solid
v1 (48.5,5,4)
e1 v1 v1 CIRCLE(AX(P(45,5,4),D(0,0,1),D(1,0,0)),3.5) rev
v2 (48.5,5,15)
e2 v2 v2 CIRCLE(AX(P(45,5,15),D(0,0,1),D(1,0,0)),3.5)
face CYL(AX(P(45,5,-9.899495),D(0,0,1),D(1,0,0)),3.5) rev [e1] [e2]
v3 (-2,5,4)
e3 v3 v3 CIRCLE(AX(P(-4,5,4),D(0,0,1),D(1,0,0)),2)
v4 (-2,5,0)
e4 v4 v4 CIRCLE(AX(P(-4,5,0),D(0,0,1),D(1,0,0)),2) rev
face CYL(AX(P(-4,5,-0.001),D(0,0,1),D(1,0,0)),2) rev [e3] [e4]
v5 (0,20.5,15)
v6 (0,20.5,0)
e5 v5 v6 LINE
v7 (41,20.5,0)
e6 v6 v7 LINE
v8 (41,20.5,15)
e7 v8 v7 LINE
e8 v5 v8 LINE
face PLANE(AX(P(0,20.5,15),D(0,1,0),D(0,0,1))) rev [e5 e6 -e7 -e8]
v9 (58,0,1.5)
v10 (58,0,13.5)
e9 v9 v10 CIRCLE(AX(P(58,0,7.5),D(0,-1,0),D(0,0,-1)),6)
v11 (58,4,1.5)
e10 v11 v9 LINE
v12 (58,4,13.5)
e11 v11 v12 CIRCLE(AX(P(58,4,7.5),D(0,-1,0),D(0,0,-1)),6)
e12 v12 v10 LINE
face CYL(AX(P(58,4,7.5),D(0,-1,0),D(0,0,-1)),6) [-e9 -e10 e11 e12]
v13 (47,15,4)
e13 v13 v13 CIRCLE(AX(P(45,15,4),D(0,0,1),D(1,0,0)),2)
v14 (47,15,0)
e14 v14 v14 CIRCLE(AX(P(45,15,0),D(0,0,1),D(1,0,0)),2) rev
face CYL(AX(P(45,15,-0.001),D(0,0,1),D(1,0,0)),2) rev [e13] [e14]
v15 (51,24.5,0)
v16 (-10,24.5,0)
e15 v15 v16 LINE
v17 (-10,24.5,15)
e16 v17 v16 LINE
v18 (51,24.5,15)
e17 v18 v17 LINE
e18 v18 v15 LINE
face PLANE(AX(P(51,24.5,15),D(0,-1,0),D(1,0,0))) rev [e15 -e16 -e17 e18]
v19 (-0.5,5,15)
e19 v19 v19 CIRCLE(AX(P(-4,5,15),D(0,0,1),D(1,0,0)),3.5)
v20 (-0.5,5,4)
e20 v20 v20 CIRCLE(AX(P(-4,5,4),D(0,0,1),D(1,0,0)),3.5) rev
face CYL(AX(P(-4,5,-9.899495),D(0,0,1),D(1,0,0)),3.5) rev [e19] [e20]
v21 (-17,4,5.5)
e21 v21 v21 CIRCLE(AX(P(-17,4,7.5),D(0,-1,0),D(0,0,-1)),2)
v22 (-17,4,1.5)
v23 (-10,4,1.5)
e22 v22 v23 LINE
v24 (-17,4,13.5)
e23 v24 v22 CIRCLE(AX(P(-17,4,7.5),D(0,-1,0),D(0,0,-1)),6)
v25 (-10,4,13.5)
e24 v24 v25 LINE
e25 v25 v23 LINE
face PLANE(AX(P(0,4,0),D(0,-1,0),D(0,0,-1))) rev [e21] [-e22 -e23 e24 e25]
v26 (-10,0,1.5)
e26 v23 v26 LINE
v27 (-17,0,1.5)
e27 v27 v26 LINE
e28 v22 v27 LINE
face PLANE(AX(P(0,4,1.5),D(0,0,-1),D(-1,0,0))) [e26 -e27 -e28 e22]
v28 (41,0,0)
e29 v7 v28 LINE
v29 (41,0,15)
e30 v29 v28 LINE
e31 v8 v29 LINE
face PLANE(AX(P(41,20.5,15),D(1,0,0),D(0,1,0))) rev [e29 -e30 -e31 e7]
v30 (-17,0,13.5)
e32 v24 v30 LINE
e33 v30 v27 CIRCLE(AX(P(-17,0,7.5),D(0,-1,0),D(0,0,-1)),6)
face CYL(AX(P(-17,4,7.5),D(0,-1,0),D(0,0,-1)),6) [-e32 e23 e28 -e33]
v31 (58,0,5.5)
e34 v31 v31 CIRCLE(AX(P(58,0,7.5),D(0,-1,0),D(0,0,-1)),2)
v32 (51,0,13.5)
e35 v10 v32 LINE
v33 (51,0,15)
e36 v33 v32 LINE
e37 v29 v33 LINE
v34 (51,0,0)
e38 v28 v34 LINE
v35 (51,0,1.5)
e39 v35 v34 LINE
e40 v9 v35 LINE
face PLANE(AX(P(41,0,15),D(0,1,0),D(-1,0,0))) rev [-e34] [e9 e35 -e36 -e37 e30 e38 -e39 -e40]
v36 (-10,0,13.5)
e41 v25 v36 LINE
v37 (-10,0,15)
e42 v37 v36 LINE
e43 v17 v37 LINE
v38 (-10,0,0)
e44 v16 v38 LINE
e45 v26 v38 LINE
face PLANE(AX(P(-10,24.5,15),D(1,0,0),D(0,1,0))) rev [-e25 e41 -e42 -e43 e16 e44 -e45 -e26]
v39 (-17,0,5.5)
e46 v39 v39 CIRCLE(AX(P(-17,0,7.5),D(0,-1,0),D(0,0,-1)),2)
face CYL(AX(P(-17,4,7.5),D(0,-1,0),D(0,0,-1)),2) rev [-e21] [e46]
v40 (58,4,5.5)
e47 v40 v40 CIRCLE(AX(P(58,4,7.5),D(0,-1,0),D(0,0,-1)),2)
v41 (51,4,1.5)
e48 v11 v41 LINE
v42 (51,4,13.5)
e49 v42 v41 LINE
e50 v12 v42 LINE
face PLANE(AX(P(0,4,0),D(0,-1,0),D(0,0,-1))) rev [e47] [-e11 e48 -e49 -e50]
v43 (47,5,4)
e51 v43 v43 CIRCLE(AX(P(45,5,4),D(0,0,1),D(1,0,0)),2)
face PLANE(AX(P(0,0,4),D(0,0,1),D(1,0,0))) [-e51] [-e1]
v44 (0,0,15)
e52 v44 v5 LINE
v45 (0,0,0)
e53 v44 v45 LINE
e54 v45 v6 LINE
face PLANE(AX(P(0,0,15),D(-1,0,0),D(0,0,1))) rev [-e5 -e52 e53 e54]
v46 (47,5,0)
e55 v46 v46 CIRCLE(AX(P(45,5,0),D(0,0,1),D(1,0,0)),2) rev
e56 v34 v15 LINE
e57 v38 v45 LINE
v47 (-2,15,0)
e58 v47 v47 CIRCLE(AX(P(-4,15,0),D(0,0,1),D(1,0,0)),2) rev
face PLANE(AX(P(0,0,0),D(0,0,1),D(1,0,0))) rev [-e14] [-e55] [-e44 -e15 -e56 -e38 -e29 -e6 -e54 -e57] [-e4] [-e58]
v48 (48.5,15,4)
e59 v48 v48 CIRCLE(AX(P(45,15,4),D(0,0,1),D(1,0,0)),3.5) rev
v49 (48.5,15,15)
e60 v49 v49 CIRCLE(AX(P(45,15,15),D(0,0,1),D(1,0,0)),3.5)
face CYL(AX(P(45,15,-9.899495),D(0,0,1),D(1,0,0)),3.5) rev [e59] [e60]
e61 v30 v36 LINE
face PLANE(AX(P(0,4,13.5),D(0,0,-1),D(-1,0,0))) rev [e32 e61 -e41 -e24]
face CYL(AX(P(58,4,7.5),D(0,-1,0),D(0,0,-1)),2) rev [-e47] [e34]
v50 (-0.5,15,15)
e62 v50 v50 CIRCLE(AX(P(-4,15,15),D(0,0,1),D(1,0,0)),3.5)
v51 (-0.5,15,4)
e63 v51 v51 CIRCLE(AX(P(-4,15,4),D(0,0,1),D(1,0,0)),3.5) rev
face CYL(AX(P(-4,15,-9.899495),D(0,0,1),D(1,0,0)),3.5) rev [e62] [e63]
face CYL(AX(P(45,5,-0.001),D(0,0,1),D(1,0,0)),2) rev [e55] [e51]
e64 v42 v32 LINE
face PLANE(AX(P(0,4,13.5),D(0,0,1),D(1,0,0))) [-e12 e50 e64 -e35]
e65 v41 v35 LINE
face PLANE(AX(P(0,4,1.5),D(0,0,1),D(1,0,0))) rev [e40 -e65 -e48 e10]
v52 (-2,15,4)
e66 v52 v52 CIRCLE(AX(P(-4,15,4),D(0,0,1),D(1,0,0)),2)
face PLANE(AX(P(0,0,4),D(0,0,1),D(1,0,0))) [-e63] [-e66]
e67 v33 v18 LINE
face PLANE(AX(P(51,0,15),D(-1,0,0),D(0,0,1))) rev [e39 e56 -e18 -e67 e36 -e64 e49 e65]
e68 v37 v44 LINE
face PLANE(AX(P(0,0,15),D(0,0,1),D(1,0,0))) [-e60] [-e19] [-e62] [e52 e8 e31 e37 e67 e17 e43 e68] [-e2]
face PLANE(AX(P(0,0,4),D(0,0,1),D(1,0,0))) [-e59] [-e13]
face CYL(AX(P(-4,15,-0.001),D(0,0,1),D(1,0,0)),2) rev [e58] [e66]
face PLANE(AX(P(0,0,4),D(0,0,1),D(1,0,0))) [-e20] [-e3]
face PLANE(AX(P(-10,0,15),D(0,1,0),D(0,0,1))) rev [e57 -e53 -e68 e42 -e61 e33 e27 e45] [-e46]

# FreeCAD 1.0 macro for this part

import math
import FreeCAD as App
import Part
import Sketcher

doc = App.newDocument("Part")
body = doc.addObject("PartDesign::Body", "Body")

# Sketch on XY plane
sketch1 = doc.addObject("Sketcher::SketchObject", "Sketch")
body.addObject(sketch1)
sketch1.AttachmentSupport = (doc.XY_Plane, [""])
sketch1.MapMode = "FlatFace"
sketch1.addGeometry(Part.LineSegment(App.Vector(0, 0, 0), App.Vector(0, 20, 0)), False)
sketch1.addGeometry(Part.LineSegment(App.Vector(0, 20, 0), App.Vector(41, 20, 0)), False)
sketch1.addGeometry(Part.LineSegment(App.Vector(41, 20, 0), App.Vector(41, 0, 0)), False)
sketch1.addGeometry(Part.LineSegment(App.Vector(41, 0, 0), App.Vector(51, 0, 0)), False)
sketch1.addGeometry(Part.LineSegment(App.Vector(51, 0, 0), App.Vector(51, 24, 0)), False)
sketch1.addGeometry(Part.LineSegment(App.Vector(51, 24, 0), App.Vector(-10, 24, 0)), False)
sketch1.addGeometry(Part.LineSegment(App.Vector(-10, 24, 0), App.Vector(-10, 0, 0)), False)
sketch1.addGeometry(Part.LineSegment(App.Vector(-10, 0, 0), App.Vector(0, 0, 0)), False)
sketch1.addConstraint(Sketcher.Constraint("Coincident", 0, 2, 1, 1))
sketch1.addConstraint(Sketcher.Constraint("Coincident", 1, 2, 2, 1))
sketch1.addConstraint(Sketcher.Constraint("Coincident", 2, 2, 3, 1))
sketch1.addConstraint(Sketcher.Constraint("Coincident", 3, 2, 4, 1))
sketch1.addConstraint(Sketcher.Constraint("Coincident", 4, 2, 5, 1))
sketch1.addConstraint(Sketcher.Constraint("Coincident", 5, 2, 6, 1))
sketch1.addConstraint(Sketcher.Constraint("Coincident", 6, 2, 7, 1))
sketch1.addConstraint(Sketcher.Constraint("Coincident", 7, 2, 0, 1))
sketch1.addConstraint(Sketcher.Constraint("Vertical", 0))
sketch1.addConstraint(Sketcher.Constraint("Horizontal", 1))
sketch1.addConstraint(Sketcher.Constraint("Vertical", 2))
sketch1.addConstraint(Sketcher.Constraint("Horizontal", 3))
sketch1.addConstraint(Sketcher.Constraint("Vertical", 4))
sketch1.addConstraint(Sketcher.Constraint("Horizontal", 5))
sketch1.addConstraint(Sketcher.Constraint("Vertical", 6))
sketch1.addConstraint(Sketcher.Constraint("Horizontal", 7))
sketch1.addConstraint(Sketcher.Constraint("Coincident", 7, 2, -1, 1))
sketch1.addConstraint(Sketcher.Constraint("PointOnObject", 2, 2, -1))
sketch1.addConstraint(Sketcher.Constraint("Equal", 3, 7))
sketch1.addConstraint(Sketcher.Constraint("DistanceX", 1, 1, 1, 2, 41.0))
sketch1.addConstraint(Sketcher.Constraint("DistanceX", 3, 1, 3, 2, 10.0))
sketch1.addConstraint(Sketcher.Constraint("DistanceY", 0, 1, 0, 2, 20.5))
sketch1.addConstraint(Sketcher.Constraint("DistanceY", 4, 1, 4, 2, 24.5))
pad1 = doc.addObject("PartDesign::Pad", "Pad")
body.addObject(pad1)
pad1.Profile = sketch1
pad1.Length = 15

# Sketch on XY plane
sketch2 = doc.addObject("Sketcher::SketchObject", "Sketch001")
body.addObject(sketch2)
sketch2.AttachmentSupport = (doc.XY_Plane, [""])
sketch2.MapMode = "FlatFace"
sketch2.AttachmentOffset = App.Placement(App.Vector(0, 0, 15), App.Rotation())
sketch2.addGeometry(Part.Circle(App.Vector(45, 5, 0), App.Vector(0, 0, 1), 3.5), False)
sketch2.addGeometry(Part.Circle(App.Vector(45, 15, 0), App.Vector(0, 0, 1), 3.5), False)
sketch2.addGeometry(Part.Circle(App.Vector(-4, 5, 0), App.Vector(0, 0, 1), 3.5), False)
sketch2.addGeometry(Part.Circle(App.Vector(-4, 15, 0), App.Vector(0, 0, 1), 3.5), False)
sketch2.addConstraint(Sketcher.Constraint("Equal", 0, 1))
sketch2.addConstraint(Sketcher.Constraint("Equal", 1, 2))
sketch2.addConstraint(Sketcher.Constraint("Equal", 2, 3))
sketch2.addConstraint(Sketcher.Constraint("Horizontal", 0, 3, 2, 3))
sketch2.addConstraint(Sketcher.Constraint("Horizontal", 1, 3, 3, 3))
sketch2.addConstraint(Sketcher.Constraint("Vertical", 0, 3, 1, 3))
sketch2.addConstraint(Sketcher.Constraint("Vertical", 2, 3, 3, 3))
sketch2.addConstraint(Sketcher.Constraint("Diameter", 0, 7.0))
sketch2.addConstraint(Sketcher.Constraint("DistanceX", -1, 1, 0, 3, 45.0))
sketch2.addConstraint(Sketcher.Constraint("DistanceY", -1, 1, 0, 3, 5.0))
sketch2.addConstraint(Sketcher.Constraint("DistanceY", -1, 1, 1, 3, 15.0))
sketch2.addConstraint(Sketcher.Constraint("DistanceX", 2, 3, -1, 1, 4.0))
pocket1 = doc.addObject("PartDesign::Pocket", "Pocket")
body.addObject(pocket1)
pocket1.Profile = sketch2
pocket1.Length = 11

# Sketch on XY plane
sketch3 = doc.addObject("Sketcher::SketchObject", "Sketch002")
body.addObject(sketch3)
sketch3.AttachmentSupport = (doc.XY_Plane, [""])
sketch3.MapMode = "FlatFace"
sketch3.AttachmentOffset = App.Placement(App.Vector(0, 0, 4), App.Rotation())
sketch3.addGeometry(Part.Circle(App.Vector(-4, 15, 0), App.Vector(0, 0, 1), 2), False)
sketch3.addConstraint(Sketcher.Constraint("Diameter", 0, 4.0))
sketch3.addConstraint(Sketcher.Constraint("DistanceX", 0, 3, -1, 1, 4.0))
sketch3.addConstraint(Sketcher.Constraint("DistanceY", -1, 1, 0, 3, 15.0))
pocket2 = doc.addObject("PartDesign::Pocket", "Pocket001")
body.addObject(pocket2)
pocket2.Profile = sketch3
pocket2.Type = "UpToFirst"

# Sketch on XY plane
sketch4 = doc.addObject("Sketcher::SketchObject", "Sketch003")
body.addObject(sketch4)
sketch4.AttachmentSupport = (doc.XY_Plane, [""])
sketch4.MapMode = "FlatFace"
sketch4.AttachmentOffset = App.Placement(App.Vector(0, 0, 4), App.Rotation())
sketch4.addGeometry(Part.Circle(App.Vector(-4, 5, 0), App.Vector(0, 0, 1), 2), False)
sketch4.addConstraint(Sketcher.Constraint("Diameter", 0, 4.0))
sketch4.addConstraint(Sketcher.Constraint("DistanceX", 0, 3, -1, 1, 4.0))
sketch4.addConstraint(Sketcher.Constraint("DistanceY", -1, 1, 0, 3, 5.0))
pocket3 = doc.addObject("PartDesign::Pocket", "Pocket002")
body.addObject(pocket3)
pocket3.Profile = sketch4
pocket3.Type = "UpToFirst"

# Sketch on XY plane
sketch5 = doc.addObject("Sketcher::SketchObject", "Sketch004")
body.addObject(sketch5)
sketch5.AttachmentSupport = (doc.XY_Plane, [""])
sketch5.MapMode = "FlatFace"
sketch5.AttachmentOffset = App.Placement(App.Vector(0, 0, 4), App.Rotation())
sketch5.addGeometry(Part.Circle(App.Vector(45, 15, 0), App.Vector(0, 0, 1), 2), False)
sketch5.addConstraint(Sketcher.Constraint("Diameter", 0, 4.0))
sketch5.addConstraint(Sketcher.Constraint("DistanceX", -1, 1, 0, 3, 45.0))
sketch5.addConstraint(Sketcher.Constraint("DistanceY", -1, 1, 0, 3, 15.0))
pocket4 = doc.addObject("PartDesign::Pocket", "Pocket003")
body.addObject(pocket4)
pocket4.Profile = sketch5
pocket4.Type = "UpToFirst"

# Sketch on XY plane
sketch6 = doc.addObject("Sketcher::SketchObject", "Sketch005")
body.addObject(sketch6)
sketch6.AttachmentSupport = (doc.XY_Plane, [""])
sketch6.MapMode = "FlatFace"
sketch6.AttachmentOffset = App.Placement(App.Vector(0, 0, 4), App.Rotation())
sketch6.addGeometry(Part.Circle(App.Vector(45, 5, 0), App.Vector(0, 0, 1), 2), False)
sketch6.addConstraint(Sketcher.Constraint("Diameter", 0, 4.0))
sketch6.addConstraint(Sketcher.Constraint("DistanceX", -1, 1, 0, 3, 45.0))
sketch6.addConstraint(Sketcher.Constraint("DistanceY", -1, 1, 0, 3, 5.0))
pocket5 = doc.addObject("PartDesign::Pocket", "Pocket004")
body.addObject(pocket5)
pocket5.Profile = sketch6
pocket5.Type = "UpToFirst"

# Sketch on XZ plane
sketch7 = doc.addObject("Sketcher::SketchObject", "Sketch006")
body.addObject(sketch7)
sketch7.AttachmentSupport = (doc.XZ_Plane, [""])
sketch7.MapMode = "FlatFace"
sketch7.addGeometry(Part.LineSegment(App.Vector(51, 1.5, 0), App.Vector(58, 1.5, 0)), False)
sketch7.addGeometry(Part.ArcOfCircle(Part.Circle(App.Vector(58, 7.5, 0), App.Vector(0, 0, 1), 6), math.radians(-90), math.radians(90)), False)
sketch7.addGeometry(Part.LineSegment(App.Vector(58, 13.5, 0), App.Vector(51, 13.5, 0)), False)
sketch7.addGeometry(Part.LineSegment(App.Vector(51, 13.5, 0), App.Vector(51, 1.5, 0)), False)
sketch7.addGeometry(Part.Circle(App.Vector(58, 7.5, 0), App.Vector(0, 0, 1), 2), False)
sketch7.addGeometry(Part.ArcOfCircle(Part.Circle(App.Vector(-17, 7.5, 0), App.Vector(0, 0, 1), 6), math.radians(90), math.radians(270)), False)
sketch7.addGeometry(Part.LineSegment(App.Vector(-17, 1.5, 0), App.Vector(-10, 1.5, 0)), False)
sketch7.addGeometry(Part.LineSegment(App.Vector(-10, 1.5, 0), App.Vector(-10, 13.5, 0)), False)
sketch7.addGeometry(Part.LineSegment(App.Vector(-10, 13.5, 0), App.Vector(-17, 13.5, 0)), False)
sketch7.addGeometry(Part.Circle(App.Vector(-17, 7.5, 0), App.Vector(0, 0, 1), 2), False)
sketch7.addConstraint(Sketcher.Constraint("Tangent", 0, 2, 1, 1))
sketch7.addConstraint(Sketcher.Constraint("Tangent", 1, 2, 2, 1))
sketch7.addConstraint(Sketcher.Constraint("Coincident", 2, 2, 3, 1))
sketch7.addConstraint(Sketcher.Constraint("Coincident", 3, 2, 0, 1))
sketch7.addConstraint(Sketcher.Constraint("Tangent", 5, 2, 6, 1))
sketch7.addConstraint(Sketcher.Constraint("Coincident", 6, 2, 7, 1))
sketch7.addConstraint(Sketcher.Constraint("Coincident", 7, 2, 8, 1))
sketch7.addConstraint(Sketcher.Constraint("Tangent", 8, 2, 5, 1))
sketch7.addConstraint(Sketcher.Constraint("Horizontal", 0))
sketch7.addConstraint(Sketcher.Constraint("Horizontal", 2))
sketch7.addConstraint(Sketcher.Constraint("Vertical", 3))
sketch7.addConstraint(Sketcher.Constraint("Horizontal", 6))
sketch7.addConstraint(Sketcher.Constraint("Vertical", 7))
sketch7.addConstraint(Sketcher.Constraint("Horizontal", 8))
sketch7.addConstraint(Sketcher.Constraint("Coincident", 4, 3, 1, 3))
sketch7.addConstraint(Sketcher.Constraint("Coincident", 9, 3, 5, 3))
sketch7.addConstraint(Sketcher.Constraint("Equal", 1, 5))
sketch7.addConstraint(Sketcher.Constraint("Equal", 4, 9))
sketch7.addConstraint(Sketcher.Constraint("Horizontal", 4, 3, 5, 3))
sketch7.addConstraint(Sketcher.Constraint("Equal", 2, 6))
sketch7.addConstraint(Sketcher.Constraint("Diameter", 4, 4.0))
sketch7.addConstraint(Sketcher.Constraint("Radius", 1, 6.0))
sketch7.addConstraint(Sketcher.Constraint("DistanceX", 0, 1, 0, 2, 7.0))
sketch7.addConstraint(Sketcher.Constraint("DistanceX", -1, 1, 1, 3, 58.0))
sketch7.addConstraint(Sketcher.Constraint("DistanceX", 5, 3, -1, 1, 17.0))
sketch7.addConstraint(Sketcher.Constraint("DistanceY", -1, 1, 1, 3, 7.5))
pad2 = doc.addObject("PartDesign::Pad", "Pad001")
body.addObject(pad2)
pad2.Profile = sketch7
pad2.Length = 4
pad2.Reversed = True

doc.recompute()
